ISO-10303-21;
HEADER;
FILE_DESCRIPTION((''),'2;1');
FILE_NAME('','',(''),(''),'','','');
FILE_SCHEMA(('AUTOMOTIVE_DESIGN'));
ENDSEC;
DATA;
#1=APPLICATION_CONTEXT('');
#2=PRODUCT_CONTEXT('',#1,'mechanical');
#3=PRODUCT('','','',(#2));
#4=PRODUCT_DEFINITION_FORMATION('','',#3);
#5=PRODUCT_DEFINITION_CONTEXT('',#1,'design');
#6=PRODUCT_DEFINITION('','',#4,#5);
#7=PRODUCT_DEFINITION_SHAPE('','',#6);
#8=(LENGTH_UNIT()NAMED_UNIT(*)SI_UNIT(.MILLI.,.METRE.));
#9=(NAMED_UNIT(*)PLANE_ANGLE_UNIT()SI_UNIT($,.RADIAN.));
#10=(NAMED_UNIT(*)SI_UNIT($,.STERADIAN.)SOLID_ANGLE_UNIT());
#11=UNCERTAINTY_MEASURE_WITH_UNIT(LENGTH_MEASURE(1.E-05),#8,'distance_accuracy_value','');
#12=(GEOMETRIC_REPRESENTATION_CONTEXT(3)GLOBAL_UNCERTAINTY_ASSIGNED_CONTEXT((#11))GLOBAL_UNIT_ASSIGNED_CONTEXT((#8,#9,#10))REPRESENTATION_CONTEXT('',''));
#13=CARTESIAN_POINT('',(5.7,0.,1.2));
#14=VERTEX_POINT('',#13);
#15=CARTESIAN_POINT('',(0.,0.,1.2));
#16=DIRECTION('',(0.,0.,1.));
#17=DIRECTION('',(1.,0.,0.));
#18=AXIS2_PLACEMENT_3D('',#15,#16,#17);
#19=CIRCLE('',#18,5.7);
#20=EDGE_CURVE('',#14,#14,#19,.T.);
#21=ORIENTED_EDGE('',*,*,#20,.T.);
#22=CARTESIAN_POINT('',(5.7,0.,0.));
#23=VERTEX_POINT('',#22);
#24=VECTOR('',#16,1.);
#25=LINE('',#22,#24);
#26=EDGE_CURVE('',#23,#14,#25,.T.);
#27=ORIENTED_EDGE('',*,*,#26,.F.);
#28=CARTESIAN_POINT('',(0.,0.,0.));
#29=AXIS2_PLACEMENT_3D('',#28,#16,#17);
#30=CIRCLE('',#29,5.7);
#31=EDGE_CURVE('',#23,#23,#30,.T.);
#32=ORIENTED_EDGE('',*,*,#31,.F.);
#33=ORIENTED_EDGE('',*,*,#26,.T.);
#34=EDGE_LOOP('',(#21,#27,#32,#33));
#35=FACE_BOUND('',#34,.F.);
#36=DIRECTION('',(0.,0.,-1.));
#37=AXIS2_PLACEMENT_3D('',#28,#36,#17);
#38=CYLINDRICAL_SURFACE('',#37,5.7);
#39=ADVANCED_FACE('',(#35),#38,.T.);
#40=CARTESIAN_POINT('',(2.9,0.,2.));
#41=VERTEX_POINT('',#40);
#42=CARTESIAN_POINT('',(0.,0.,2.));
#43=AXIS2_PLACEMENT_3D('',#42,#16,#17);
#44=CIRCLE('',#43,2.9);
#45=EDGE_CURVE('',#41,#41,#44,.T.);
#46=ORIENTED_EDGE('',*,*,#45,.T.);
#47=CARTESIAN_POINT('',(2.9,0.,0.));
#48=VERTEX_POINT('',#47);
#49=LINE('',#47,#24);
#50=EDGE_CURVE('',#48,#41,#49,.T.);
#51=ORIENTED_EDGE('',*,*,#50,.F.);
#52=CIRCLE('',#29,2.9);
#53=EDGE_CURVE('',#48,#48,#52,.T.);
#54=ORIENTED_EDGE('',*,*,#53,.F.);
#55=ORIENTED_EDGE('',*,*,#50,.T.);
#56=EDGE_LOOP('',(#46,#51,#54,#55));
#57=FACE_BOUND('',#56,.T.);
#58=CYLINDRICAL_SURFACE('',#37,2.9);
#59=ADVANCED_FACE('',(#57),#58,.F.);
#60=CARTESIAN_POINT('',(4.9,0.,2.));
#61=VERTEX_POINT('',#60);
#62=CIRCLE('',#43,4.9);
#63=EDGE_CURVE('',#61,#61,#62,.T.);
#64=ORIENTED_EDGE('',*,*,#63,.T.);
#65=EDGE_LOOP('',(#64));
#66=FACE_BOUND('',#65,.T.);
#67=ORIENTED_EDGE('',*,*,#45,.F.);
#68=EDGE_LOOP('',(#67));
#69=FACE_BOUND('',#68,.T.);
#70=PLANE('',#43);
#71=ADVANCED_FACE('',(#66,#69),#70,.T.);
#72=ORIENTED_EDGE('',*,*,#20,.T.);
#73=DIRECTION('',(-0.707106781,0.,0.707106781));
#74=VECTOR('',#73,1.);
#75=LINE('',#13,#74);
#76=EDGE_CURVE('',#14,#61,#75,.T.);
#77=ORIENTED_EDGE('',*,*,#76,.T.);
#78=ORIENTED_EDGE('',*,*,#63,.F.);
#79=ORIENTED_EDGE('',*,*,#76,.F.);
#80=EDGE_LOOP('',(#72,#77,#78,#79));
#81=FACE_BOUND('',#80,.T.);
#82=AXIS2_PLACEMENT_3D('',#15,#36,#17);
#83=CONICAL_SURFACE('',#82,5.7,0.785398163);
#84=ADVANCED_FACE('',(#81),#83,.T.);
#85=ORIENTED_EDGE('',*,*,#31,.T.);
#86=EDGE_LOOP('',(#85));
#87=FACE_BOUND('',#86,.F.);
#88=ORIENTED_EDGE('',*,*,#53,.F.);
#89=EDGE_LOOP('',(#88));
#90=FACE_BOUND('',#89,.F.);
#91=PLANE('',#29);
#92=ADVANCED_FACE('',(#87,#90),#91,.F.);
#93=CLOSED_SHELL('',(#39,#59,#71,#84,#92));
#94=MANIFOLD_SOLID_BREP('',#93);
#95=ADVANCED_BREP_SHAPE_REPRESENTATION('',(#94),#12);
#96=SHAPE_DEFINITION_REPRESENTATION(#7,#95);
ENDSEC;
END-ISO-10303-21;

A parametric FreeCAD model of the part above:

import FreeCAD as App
import Part
import Sketcher


def edges_at(feature, points):
    """Names of the edges that pass closest to the given points."""
    edges = feature.Shape.Edges
    near = lambda p: min(range(len(edges)), key=lambda i: edges[i].distToShape(Part.Vertex(*p))[0])
    return sorted({f"Edge{near(p) + 1}" for p in points})

doc = App.newDocument("Part")
body = doc.addObject("PartDesign::Body", "Body")

sketch1 = body.newObject("Sketcher::SketchObject", "Sketch")
sketch1.AttachmentSupport = (doc.getObject("XY_Plane"), [""])
sketch1.MapMode = "FlatFace"
sketch1.addGeometry(Part.Circle(App.Vector(0, 0, 0), App.Vector(0, 0, 1), 6), False)
sketch1.addConstraint([
    Sketcher.Constraint("Coincident", 0, 3, -1, 1),
    Sketcher.Constraint("Diameter", 0, 11.4),
])
pad1 = body.newObject("PartDesign::Pad", "Pad")
pad1.Profile = sketch1
pad1.Length = 2
doc.recompute()

chamfer = body.newObject("PartDesign::Chamfer", "Chamfer")
chamfer.Base = (pad1, edges_at(pad1, [(-5.7, 0, 2)]))
chamfer.Size = 0.8

sketch2 = body.newObject("Sketcher::SketchObject", "Sketch001")
sketch2.AttachmentSupport = (doc.getObject("XY_Plane"), [""])
sketch2.MapMode = "FlatFace"
sketch2.addGeometry(Part.Circle(App.Vector(0, 0, 0), App.Vector(0, 0, 1), 2.9), False)
sketch2.addConstraint([
    Sketcher.Constraint("Coincident", 0, 3, -1, 1),
    Sketcher.Constraint("Diameter", 0, 5.8),
])
pocket1 = body.newObject("PartDesign::Pocket", "Pocket")
pocket1.Profile = sketch2
pocket1.Length = 2
pocket1.Reversed = True

doc.recompute()
